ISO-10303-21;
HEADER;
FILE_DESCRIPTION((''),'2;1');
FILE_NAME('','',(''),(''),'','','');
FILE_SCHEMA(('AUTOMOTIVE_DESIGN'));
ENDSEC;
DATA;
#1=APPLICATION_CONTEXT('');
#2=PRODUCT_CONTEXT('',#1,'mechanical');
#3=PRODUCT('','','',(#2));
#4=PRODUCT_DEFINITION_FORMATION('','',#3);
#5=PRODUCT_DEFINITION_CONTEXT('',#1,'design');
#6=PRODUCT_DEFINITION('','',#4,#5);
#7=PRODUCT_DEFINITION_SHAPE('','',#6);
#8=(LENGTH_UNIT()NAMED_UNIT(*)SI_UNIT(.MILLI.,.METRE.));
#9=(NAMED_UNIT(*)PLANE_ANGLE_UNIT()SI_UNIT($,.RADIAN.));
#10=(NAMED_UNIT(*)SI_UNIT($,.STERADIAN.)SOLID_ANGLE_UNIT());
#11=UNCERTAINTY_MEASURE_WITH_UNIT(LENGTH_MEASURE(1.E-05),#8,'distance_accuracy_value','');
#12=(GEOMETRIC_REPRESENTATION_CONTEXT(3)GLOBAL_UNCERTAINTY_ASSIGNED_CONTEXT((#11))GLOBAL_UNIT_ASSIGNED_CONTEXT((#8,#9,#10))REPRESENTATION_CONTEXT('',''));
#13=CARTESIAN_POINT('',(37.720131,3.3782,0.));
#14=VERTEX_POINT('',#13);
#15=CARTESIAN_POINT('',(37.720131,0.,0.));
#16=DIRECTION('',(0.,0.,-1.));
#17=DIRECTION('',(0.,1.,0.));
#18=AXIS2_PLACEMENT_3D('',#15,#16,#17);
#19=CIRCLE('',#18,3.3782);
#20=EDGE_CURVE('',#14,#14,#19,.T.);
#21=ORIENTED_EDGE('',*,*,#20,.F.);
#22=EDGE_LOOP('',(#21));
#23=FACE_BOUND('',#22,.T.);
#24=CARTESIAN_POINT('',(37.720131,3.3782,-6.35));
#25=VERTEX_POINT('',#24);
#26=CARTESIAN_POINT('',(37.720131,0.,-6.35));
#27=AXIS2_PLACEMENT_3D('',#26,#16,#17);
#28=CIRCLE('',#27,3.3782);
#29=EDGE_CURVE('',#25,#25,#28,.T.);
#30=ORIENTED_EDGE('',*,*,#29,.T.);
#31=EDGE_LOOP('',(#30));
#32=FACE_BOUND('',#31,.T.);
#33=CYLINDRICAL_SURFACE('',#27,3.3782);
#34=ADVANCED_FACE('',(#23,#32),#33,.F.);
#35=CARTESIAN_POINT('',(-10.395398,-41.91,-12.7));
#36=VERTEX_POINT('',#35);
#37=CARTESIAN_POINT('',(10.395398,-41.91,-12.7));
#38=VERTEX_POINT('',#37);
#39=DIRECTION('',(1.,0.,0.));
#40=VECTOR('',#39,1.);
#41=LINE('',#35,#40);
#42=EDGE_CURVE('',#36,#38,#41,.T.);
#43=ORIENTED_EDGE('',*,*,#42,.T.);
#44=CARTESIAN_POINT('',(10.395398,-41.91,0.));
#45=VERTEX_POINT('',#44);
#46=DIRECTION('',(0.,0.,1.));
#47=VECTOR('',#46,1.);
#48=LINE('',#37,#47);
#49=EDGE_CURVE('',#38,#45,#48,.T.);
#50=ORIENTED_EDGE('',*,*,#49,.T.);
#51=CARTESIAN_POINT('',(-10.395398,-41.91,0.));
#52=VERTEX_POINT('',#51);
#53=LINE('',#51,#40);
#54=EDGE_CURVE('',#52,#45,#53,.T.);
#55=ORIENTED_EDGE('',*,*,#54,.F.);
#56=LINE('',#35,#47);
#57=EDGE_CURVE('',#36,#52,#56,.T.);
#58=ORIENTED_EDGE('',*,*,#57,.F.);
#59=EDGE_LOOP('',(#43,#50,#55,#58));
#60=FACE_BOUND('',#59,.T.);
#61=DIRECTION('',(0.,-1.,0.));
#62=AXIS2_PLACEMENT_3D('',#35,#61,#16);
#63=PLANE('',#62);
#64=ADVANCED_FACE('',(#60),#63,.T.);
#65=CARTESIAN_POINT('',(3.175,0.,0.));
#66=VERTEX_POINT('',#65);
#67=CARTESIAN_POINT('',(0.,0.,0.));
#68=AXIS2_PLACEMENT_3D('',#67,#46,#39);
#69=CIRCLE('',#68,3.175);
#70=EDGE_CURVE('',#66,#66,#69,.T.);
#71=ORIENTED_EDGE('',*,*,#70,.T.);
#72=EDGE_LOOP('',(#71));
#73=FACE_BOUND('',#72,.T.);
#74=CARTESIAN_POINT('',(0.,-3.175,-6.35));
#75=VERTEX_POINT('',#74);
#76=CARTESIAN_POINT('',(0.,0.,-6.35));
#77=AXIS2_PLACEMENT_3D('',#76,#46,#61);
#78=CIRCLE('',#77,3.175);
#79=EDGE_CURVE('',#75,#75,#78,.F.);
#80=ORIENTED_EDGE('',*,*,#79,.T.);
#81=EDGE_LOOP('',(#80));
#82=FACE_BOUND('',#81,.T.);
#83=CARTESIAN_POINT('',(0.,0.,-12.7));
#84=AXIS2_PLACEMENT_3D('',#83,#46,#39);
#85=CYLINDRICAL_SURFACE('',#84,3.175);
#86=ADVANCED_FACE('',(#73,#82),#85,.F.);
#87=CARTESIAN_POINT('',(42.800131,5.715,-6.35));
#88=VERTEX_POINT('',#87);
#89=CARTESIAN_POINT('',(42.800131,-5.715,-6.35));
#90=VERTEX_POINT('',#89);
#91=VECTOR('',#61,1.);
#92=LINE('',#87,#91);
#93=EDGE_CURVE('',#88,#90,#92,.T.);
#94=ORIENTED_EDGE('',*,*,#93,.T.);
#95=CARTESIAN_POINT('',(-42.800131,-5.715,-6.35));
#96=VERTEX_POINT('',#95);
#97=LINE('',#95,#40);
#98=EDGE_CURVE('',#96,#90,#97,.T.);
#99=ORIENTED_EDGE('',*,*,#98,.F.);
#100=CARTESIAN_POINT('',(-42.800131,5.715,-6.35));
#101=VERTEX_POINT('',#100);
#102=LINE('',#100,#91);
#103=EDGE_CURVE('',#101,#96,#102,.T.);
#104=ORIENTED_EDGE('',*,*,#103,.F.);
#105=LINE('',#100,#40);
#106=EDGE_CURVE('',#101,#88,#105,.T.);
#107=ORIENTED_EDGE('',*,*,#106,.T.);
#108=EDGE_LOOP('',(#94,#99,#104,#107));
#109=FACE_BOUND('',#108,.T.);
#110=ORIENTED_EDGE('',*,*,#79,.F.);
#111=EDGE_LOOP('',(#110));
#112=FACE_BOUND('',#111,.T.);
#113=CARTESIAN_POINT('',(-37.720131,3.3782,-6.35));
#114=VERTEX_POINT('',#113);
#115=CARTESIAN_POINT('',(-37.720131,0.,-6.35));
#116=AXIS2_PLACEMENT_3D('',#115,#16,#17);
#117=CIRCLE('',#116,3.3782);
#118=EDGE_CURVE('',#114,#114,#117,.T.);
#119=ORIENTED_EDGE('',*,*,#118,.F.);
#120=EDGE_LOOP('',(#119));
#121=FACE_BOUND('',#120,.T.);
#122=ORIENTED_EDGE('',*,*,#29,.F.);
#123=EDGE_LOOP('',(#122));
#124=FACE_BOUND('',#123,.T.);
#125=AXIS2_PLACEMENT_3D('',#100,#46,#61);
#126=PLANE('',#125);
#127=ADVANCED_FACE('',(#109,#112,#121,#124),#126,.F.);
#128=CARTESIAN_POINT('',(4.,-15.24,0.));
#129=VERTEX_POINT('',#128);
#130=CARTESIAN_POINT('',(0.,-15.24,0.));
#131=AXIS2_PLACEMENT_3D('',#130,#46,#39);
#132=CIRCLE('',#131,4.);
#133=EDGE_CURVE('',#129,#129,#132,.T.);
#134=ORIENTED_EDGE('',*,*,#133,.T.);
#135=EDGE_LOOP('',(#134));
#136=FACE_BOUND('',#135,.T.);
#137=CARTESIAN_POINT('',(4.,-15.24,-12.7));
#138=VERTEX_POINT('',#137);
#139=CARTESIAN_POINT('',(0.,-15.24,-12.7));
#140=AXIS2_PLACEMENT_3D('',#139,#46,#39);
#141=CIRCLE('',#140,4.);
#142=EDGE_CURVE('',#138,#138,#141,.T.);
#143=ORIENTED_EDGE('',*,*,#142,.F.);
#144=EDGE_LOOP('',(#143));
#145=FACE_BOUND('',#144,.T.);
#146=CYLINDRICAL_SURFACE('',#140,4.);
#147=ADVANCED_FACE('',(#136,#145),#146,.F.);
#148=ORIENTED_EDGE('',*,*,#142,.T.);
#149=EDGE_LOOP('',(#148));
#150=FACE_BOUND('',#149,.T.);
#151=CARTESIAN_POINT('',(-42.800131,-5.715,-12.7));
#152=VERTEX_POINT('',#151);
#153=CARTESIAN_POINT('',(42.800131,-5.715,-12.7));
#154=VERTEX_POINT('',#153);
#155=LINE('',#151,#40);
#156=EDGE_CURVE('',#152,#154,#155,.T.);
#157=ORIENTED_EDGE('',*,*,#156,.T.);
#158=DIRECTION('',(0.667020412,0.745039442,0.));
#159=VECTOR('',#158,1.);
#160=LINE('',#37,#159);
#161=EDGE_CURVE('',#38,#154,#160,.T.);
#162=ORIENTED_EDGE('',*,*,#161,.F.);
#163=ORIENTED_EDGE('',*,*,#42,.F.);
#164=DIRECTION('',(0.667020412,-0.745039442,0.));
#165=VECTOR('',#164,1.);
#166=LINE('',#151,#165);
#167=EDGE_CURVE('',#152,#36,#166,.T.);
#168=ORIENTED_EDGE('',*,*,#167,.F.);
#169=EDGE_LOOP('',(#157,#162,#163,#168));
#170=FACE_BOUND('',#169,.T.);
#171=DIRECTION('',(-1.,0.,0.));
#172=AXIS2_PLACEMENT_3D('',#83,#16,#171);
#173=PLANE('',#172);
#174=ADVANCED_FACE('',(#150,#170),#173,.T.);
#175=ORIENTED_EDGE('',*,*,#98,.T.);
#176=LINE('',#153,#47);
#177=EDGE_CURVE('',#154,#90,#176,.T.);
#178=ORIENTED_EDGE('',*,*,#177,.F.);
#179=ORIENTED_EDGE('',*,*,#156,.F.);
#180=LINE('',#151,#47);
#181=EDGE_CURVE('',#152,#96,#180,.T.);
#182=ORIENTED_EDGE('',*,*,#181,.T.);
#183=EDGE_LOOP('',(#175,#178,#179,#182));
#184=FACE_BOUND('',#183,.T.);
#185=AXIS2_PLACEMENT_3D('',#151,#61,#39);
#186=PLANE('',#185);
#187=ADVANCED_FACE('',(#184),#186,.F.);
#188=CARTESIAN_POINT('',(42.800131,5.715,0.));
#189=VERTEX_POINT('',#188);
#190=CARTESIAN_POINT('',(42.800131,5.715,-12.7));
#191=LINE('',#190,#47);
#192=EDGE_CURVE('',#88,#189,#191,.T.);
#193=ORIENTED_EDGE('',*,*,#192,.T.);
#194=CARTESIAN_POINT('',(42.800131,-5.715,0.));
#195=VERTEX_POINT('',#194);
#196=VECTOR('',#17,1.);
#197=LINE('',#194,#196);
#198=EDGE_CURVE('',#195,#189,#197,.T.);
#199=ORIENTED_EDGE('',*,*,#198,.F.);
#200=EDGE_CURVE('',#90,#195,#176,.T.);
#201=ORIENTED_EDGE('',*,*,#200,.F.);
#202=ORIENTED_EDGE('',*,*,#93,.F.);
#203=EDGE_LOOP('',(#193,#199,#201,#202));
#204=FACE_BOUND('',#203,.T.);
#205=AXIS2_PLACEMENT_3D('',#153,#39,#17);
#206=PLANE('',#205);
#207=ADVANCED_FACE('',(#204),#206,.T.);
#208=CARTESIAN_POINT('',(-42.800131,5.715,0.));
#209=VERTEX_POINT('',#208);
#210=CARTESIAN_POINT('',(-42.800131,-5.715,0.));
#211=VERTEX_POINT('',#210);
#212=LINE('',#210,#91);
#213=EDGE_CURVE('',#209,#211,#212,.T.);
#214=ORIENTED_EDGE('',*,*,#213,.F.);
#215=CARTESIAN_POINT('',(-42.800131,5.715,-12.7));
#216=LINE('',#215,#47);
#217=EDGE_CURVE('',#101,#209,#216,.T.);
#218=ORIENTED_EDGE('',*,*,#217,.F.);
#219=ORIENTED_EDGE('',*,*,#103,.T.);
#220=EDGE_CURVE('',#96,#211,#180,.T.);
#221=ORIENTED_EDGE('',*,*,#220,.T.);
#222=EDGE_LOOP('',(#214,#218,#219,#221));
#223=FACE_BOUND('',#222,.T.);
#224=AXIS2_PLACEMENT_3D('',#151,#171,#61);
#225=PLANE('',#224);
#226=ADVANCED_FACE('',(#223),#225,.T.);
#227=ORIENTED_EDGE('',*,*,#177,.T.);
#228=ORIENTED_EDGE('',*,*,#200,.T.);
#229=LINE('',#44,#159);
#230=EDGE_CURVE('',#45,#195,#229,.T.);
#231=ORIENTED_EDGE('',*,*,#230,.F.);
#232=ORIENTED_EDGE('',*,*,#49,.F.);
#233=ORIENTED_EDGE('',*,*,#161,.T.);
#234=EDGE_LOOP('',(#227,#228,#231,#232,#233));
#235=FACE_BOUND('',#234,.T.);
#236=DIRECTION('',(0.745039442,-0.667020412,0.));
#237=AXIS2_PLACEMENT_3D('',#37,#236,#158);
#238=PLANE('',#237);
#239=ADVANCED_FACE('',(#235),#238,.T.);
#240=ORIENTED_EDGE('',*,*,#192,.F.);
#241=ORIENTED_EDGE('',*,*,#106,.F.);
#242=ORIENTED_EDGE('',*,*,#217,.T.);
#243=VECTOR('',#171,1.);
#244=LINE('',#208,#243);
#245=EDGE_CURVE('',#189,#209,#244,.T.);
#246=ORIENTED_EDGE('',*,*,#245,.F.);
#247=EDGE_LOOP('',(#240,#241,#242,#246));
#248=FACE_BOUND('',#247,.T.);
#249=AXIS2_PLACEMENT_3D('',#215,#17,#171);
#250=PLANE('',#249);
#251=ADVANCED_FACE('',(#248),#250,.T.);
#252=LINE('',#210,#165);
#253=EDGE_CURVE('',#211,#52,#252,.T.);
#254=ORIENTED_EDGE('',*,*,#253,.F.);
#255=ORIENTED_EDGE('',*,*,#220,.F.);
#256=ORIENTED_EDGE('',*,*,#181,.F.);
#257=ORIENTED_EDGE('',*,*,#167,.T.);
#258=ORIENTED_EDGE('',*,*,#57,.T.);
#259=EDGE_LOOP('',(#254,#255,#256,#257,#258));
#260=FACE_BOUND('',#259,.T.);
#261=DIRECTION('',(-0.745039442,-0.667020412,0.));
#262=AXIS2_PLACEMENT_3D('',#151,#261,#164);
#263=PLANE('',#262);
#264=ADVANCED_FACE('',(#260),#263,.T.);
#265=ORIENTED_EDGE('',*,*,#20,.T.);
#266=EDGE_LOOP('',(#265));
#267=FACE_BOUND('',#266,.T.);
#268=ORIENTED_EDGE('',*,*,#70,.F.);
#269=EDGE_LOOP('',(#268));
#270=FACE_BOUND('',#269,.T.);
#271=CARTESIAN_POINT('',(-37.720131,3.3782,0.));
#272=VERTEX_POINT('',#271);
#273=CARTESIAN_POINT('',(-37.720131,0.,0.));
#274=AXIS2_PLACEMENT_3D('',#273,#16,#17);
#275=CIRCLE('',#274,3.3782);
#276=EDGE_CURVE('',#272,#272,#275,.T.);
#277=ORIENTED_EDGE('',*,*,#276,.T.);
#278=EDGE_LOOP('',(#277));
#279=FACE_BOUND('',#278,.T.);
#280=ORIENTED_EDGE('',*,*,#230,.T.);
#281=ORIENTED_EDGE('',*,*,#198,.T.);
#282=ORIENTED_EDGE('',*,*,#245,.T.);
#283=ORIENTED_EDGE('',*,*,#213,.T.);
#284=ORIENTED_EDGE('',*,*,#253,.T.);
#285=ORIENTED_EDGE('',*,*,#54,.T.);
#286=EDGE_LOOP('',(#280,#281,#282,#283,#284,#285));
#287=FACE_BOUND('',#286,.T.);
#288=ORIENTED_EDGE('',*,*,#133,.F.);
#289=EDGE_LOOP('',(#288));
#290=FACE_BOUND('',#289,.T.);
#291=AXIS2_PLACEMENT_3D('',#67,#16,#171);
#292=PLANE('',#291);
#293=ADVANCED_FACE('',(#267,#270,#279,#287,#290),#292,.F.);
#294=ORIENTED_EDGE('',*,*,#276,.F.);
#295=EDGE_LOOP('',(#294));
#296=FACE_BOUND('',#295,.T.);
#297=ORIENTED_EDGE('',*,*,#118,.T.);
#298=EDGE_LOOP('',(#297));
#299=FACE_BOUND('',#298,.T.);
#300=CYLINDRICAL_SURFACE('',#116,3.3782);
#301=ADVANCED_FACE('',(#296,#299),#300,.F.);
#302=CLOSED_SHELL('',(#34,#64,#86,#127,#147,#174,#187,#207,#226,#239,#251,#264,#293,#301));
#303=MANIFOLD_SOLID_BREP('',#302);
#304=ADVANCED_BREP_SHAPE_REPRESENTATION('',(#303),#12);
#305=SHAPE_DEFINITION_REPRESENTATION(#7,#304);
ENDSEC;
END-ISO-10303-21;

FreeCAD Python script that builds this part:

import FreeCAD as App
import Part
import Sketcher

V = App.Vector
Q = App.Units.Quantity


def add_polygon(sketch, points):
    """Adds a closed chain of lines whose ends are joined by coincident constraints."""
    first, n = sketch.GeometryCount, len(points)
    for a, b in zip(points, points[1:] + points[:1]):
        sketch.addGeometry(Part.LineSegment(App.Vector(*a, 0), App.Vector(*b, 0)), False)
    for i in range(n):
        sketch.addConstraint(Sketcher.Constraint("Coincident", first + i, 2, first + (i + 1) % n, 1))

doc = App.newDocument("Part")
body = doc.addObject("PartDesign::Body", "Body")

sketch1 = doc.addObject("Sketcher::SketchObject", "Sketch")
body.addObject(sketch1)
sketch1.AttachmentSupport = (doc.XY_Plane, [""])
sketch1.MapMode = "FlatFace"
add_polygon(sketch1, [(-43, -6), (-10, -42), (10, -42), (43, -6), (43, 6), (-43, 6)])
sketch1.addConstraint(Sketcher.Constraint("Horizontal", 1))
sketch1.addConstraint(Sketcher.Constraint("Vertical", 3))
sketch1.addConstraint(Sketcher.Constraint("Horizontal", 4))
sketch1.addConstraint(Sketcher.Constraint("Vertical", 5))
sketch1.addConstraint(Sketcher.Constraint("Symmetric", 2, 2, 4, 2, -1, 1))
sketch1.addConstraint(Sketcher.Constraint("Horizontal", 2, 2, 5, 2))
sketch1.addConstraint(Sketcher.Constraint("Equal", 0, 2))
sketch1.addConstraint(Sketcher.Constraint("DistanceY", 3, 1, 3, 2, Q("0.45 in")))
sketch1.addConstraint(Sketcher.Constraint("DistanceY", 0, 2, -1, 1, Q("1.65 in")))
sketch1.addConstraint(Sketcher.Constraint("DistanceX", 4, 2, 4, 1, 85.600261))
sketch1.addConstraint(Sketcher.Constraint("DistanceX", 0, 2, -1, 1, 10.395398))
pad1 = doc.addObject("PartDesign::Pad", "Pad")
body.addObject(pad1)
pad1.Profile = sketch1
pad1.Length = Q("0.5 in")
pad1.Reversed = True

sketch2 = doc.addObject("Sketcher::SketchObject", "Sketch001")
body.addObject(sketch2)
sketch2.AttachmentSupport = (doc.XY_Plane, [""])
sketch2.MapMode = "FlatFace"
sketch2.addGeometry(Part.Circle(V(0, 0, 0), V(0, 0, 1), 3.2), False)
sketch2.addConstraint(Sketcher.Constraint("Coincident", 0, 3, -1, 1))
sketch2.addConstraint(Sketcher.Constraint("Diameter", 0, Q("0.25 in")))
pocket1 = doc.addObject("PartDesign::Pocket", "Pocket")
body.addObject(pocket1)
pocket1.Profile = sketch2
pocket1.Type = "ThroughAll"

sketch3 = doc.addObject("Sketcher::SketchObject", "Sketch002")
body.addObject(sketch3)
sketch3.AttachmentSupport = (doc.YZ_Plane, [""])
sketch3.MapMode = "FlatFace"
sketch3.AttachmentOffset = App.Placement(V(0, 0, 42.800131), App.Rotation())
add_polygon(sketch3, [(6, -6), (-6, -6), (-6, -13), (6, -13)])
sketch3.addConstraint(Sketcher.Constraint("Horizontal", 0))
sketch3.addConstraint(Sketcher.Constraint("Vertical", 1))
sketch3.addConstraint(Sketcher.Constraint("Horizontal", 2))
sketch3.addConstraint(Sketcher.Constraint("Vertical", 3))
sketch3.addConstraint(Sketcher.Constraint("DistanceX", 0, 2, 0, 1, Q("0.45 in")))
sketch3.addConstraint(Sketcher.Constraint("DistanceY", 1, 2, 1, 1, Q("0.25 in")))
sketch3.addConstraint(Sketcher.Constraint("DistanceY", 1, 2, -1, 1, Q("0.5 in")))
sketch3.addConstraint(Sketcher.Constraint("DistanceX", 0, 2, -1, 1, Q("0.225 in")))
pocket2 = doc.addObject("PartDesign::Pocket", "Pocket001")
body.addObject(pocket2)
pocket2.Profile = sketch3
pocket2.Type = "ThroughAll"

sketch4 = doc.addObject("Sketcher::SketchObject", "Sketch003")
body.addObject(sketch4)
sketch4.AttachmentSupport = (doc.XY_Plane, [""])
sketch4.MapMode = "FlatFace"
sketch4.addGeometry(Part.Circle(V(0, -15.2, 0), V(0, 0, 1), 4), False)
sketch4.addConstraint(Sketcher.Constraint("PointOnObject", 0, 3, -2))
sketch4.addConstraint(Sketcher.Constraint("DistanceY", 0, 3, -1, 1, Q("0.6 in")))
sketch4.addConstraint(Sketcher.Constraint("Diameter", 0, 8.0))
pocket3 = doc.addObject("PartDesign::Pocket", "Pocket002")
body.addObject(pocket3)
pocket3.Profile = sketch4
pocket3.Type = "ThroughAll"

sketch5 = doc.addObject("Sketcher::SketchObject", "Sketch004")
body.addObject(sketch5)
sketch5.AttachmentSupport = (doc.XY_Plane, [""])
sketch5.MapMode = "FlatFace"
sketch5.AttachmentOffset = App.Placement(V(0, 0, -0.25 * 25.4), App.Rotation())
sketch5.addGeometry(Part.Circle(V(37.7, 0, 0), V(0, 0, 1), 3.4), False)
sketch5.addGeometry(Part.Circle(V(-37.7, 0, 0), V(0, 0, 1), 3.4), False)
sketch5.addConstraint(Sketcher.Constraint("Equal", 0, 1))
sketch5.addConstraint(Sketcher.Constraint("Symmetric", 0, 3, 1, 3, -1, 1))
sketch5.addConstraint(Sketcher.Constraint("PointOnObject", 0, 3, -1))
sketch5.addConstraint(Sketcher.Constraint("Diameter", 0, Q("0.266 in")))
sketch5.addConstraint(Sketcher.Constraint("DistanceX", -1, 1, 0, 3, 37.720131))
doc.recompute()
hole = doc.addObject("PartDesign::Hole", "Hole")
body.addObject(hole)
hole.Profile = sketch5
hole.ThreadType = "None"
hole.Diameter = Q("0.266 in")
hole.DepthType = "ThroughAll"
hole.Reversed = True

doc.recompute()
